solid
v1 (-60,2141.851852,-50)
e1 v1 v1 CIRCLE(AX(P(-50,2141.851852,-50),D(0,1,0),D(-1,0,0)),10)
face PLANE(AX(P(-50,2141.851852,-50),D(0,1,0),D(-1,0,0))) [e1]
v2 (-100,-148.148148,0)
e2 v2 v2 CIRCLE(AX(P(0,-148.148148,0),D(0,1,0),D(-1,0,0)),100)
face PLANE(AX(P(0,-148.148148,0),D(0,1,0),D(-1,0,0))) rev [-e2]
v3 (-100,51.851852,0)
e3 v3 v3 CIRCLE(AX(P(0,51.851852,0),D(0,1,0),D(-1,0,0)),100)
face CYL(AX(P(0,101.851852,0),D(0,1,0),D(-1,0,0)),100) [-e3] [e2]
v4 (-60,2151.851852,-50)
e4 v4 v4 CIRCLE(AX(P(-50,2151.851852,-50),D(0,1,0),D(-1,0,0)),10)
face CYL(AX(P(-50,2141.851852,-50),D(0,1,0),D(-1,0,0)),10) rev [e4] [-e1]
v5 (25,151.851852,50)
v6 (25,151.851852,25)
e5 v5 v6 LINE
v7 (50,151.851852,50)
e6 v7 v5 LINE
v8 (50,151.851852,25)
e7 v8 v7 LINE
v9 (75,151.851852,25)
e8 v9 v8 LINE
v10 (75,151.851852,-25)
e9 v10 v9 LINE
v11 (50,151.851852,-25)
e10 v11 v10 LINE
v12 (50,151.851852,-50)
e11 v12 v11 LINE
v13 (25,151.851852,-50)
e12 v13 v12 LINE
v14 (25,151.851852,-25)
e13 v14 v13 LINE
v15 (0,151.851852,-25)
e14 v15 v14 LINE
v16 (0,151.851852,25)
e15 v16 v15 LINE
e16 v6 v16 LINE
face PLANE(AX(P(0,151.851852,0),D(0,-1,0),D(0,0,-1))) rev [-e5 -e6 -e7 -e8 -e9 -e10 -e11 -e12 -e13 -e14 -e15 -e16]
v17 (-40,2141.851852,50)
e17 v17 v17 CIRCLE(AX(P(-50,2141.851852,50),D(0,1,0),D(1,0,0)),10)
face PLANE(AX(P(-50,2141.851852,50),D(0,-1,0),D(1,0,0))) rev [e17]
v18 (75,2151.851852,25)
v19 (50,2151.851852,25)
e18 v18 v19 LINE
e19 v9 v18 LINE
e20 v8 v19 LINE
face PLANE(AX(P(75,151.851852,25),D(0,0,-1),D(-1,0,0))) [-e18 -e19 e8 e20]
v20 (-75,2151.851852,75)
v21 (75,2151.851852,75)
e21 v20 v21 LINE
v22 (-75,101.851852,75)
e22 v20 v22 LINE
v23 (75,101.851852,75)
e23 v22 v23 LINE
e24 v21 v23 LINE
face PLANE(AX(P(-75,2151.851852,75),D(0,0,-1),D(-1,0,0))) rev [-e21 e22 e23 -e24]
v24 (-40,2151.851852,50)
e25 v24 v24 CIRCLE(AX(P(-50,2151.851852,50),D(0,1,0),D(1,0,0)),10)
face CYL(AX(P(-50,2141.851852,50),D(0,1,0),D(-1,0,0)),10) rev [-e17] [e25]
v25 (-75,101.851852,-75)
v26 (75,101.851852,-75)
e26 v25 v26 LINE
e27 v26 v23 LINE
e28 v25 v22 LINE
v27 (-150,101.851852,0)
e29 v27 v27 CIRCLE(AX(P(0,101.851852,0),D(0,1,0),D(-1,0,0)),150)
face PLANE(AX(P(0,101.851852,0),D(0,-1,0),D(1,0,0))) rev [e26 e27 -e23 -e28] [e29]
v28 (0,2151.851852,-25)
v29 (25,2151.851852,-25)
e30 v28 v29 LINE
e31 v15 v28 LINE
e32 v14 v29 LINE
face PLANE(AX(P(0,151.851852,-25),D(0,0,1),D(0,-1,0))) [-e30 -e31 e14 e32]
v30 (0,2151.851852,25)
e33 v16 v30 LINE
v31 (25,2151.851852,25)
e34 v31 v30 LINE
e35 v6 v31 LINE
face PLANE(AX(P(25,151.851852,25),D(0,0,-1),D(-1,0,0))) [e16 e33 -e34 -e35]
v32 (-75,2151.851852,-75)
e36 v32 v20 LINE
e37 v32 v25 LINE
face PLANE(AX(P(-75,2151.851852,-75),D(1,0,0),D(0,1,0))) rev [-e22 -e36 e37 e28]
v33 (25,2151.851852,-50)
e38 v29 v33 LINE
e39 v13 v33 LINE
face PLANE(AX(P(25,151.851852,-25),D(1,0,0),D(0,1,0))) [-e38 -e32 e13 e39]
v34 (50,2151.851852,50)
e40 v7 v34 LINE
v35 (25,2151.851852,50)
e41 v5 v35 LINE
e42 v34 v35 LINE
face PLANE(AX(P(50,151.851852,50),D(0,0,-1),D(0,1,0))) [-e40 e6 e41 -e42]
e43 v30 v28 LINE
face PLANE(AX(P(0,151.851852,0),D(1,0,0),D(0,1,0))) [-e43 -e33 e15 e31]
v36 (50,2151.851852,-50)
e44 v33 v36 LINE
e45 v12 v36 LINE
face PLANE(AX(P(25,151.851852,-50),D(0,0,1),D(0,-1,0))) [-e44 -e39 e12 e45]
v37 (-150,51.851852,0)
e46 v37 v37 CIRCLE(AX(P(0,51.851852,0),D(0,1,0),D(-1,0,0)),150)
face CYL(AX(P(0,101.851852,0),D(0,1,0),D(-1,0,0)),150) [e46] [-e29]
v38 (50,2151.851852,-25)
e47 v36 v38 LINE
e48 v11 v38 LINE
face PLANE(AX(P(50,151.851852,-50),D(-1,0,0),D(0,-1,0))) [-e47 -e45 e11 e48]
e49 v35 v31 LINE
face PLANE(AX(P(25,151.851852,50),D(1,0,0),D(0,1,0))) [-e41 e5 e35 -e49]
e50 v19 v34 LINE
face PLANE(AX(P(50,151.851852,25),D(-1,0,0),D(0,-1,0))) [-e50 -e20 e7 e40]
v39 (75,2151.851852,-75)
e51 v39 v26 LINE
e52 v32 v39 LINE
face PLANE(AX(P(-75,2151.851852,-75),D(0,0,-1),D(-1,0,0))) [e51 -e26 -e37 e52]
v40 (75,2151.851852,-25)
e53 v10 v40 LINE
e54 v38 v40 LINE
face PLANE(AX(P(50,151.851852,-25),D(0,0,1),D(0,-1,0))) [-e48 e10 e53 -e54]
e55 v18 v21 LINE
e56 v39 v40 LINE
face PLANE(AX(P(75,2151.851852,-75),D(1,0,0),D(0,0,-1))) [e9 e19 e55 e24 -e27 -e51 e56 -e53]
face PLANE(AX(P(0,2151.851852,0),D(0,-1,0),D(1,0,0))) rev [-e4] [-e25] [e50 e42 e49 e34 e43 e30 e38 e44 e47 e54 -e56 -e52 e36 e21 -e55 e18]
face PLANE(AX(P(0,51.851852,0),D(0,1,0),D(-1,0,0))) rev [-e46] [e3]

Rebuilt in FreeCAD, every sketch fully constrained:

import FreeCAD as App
import Part
import Sketcher
from FreeCAD import Vector

doc = App.newDocument("Part")
body = doc.addObject("PartDesign::Body", "Body")

# Sketch on XY plane
sketch1 = body.newObject("Sketcher::SketchObject", "Sketch")
sketch1.AttachmentSupport = (doc.getObject("XY_Plane"), [""])
sketch1.MapMode = "FlatFace"
sketch1.addGeometry([
    Part.LineSegment(Vector(150, 102, 0), Vector(0, 102, 0)),  # 0
    Part.LineSegment(Vector(0, 102, 0), Vector(0, -148, 0)),  # 1
    Part.LineSegment(Vector(0, -148, 0), Vector(100, -148, 0)),  # 2
    Part.LineSegment(Vector(100, -148, 0), Vector(100, 52, 0)),  # 3
    Part.LineSegment(Vector(100, 52, 0), Vector(150, 52, 0)),  # 4
    Part.LineSegment(Vector(150, 52, 0), Vector(150, 102, 0)),  # 5
], False)
sketch1.addConstraint([
    Sketcher.Constraint("Coincident", 0, 2, 1, 1),
    Sketcher.Constraint("Coincident", 1, 2, 2, 1),
    Sketcher.Constraint("Coincident", 2, 2, 3, 1),
    Sketcher.Constraint("Coincident", 3, 2, 4, 1),
    Sketcher.Constraint("Coincident", 4, 2, 5, 1),
    Sketcher.Constraint("Coincident", 5, 2, 0, 1),
    Sketcher.Constraint("Horizontal", 0),
    Sketcher.Constraint("Vertical", 1),
    Sketcher.Constraint("Horizontal", 2),
    Sketcher.Constraint("Vertical", 3),
    Sketcher.Constraint("Horizontal", 4),
    Sketcher.Constraint("Vertical", 5),
    Sketcher.Constraint("PointOnObject", 0, 2, -2),
    Sketcher.Constraint("Equal", 4, 5),
    Sketcher.Constraint("DistanceX", 0, 2, 0, 1, 150.0),
    Sketcher.Constraint("DistanceX", 2, 1, 2, 2, 100.0),
    Sketcher.Constraint("DistanceY", 1, 2, 1, 1, 250.0),
    Sketcher.Constraint("DistanceY", -1, 1, 0, 2, 101.851852),
])
revolution = body.newObject("PartDesign::Revolution", "Revolution")
revolution.Profile = sketch1
revolution.ReferenceAxis = (sketch1, ["V_Axis"])
revolution.Angle = 360

# Sketch on XZ plane
sketch2 = body.newObject("Sketcher::SketchObject", "Sketch001")
sketch2.AttachmentSupport = (doc.getObject("XZ_Plane"), [""])
sketch2.MapMode = "FlatFace"
sketch2.AttachmentOffset = App.Placement(Vector(0, 0, -101.851852), App.Rotation())
sketch2.addGeometry([
    Part.LineSegment(Vector(-75, -75, 0), Vector(-75, 75, 0)),
    Part.LineSegment(Vector(-75, 75, 0), Vector(75, 75, 0)),
    Part.LineSegment(Vector(75, 75, 0), Vector(75, -75, 0)),
    Part.LineSegment(Vector(75, -75, 0), Vector(-75, -75, 0)),
], False)
sketch2.addConstraint([
    Sketcher.Constraint("Coincident", 0, 2, 1, 1),
    Sketcher.Constraint("Coincident", 1, 2, 2, 1),
    Sketcher.Constraint("Coincident", 2, 2, 3, 1),
    Sketcher.Constraint("Coincident", 3, 2, 0, 1),
    Sketcher.Constraint("Vertical", 0),
    Sketcher.Constraint("Horizontal", 1),
    Sketcher.Constraint("Vertical", 2),
    Sketcher.Constraint("Horizontal", 3),
    Sketcher.Constraint("Symmetric", 0, 2, 2, 2, -1, 1),
    Sketcher.Constraint("Equal", 3, 0),
    Sketcher.Constraint("DistanceX", 1, 1, 1, 2, 150.0),
])
pad1 = body.newObject("PartDesign::Pad", "Pad")
pad1.Profile = sketch2
pad1.Length = 2050
pad1.Reversed = True

# Sketch on XZ plane
sketch3 = body.newObject("Sketcher::SketchObject", "Sketch002")
sketch3.AttachmentSupport = (doc.getObject("XZ_Plane"), [""])
sketch3.MapMode = "FlatFace"
sketch3.AttachmentOffset = App.Placement(Vector(0, 0, -2151.851852), App.Rotation())
sketch3.addGeometry([
    Part.LineSegment(Vector(0, -25, 0), Vector(0, 25, 0)),  # 0
    Part.LineSegment(Vector(0, 25, 0), Vector(25, 25, 0)),  # 1
    Part.LineSegment(Vector(25, 25, 0), Vector(25, 50, 0)),  # 2
    Part.LineSegment(Vector(25, 50, 0), Vector(50, 50, 0)),  # 3
    Part.LineSegment(Vector(50, 50, 0), Vector(50, 25, 0)),  # 4
    Part.LineSegment(Vector(50, 25, 0), Vector(75, 25, 0)),  # 5
    Part.LineSegment(Vector(75, 25, 0), Vector(75, -25, 0)),  # 6
    Part.LineSegment(Vector(75, -25, 0), Vector(50, -25, 0)),  # 7
    Part.LineSegment(Vector(50, -25, 0), Vector(50, -50, 0)),  # 8
    Part.LineSegment(Vector(50, -50, 0), Vector(25, -50, 0)),  # 9
    Part.LineSegment(Vector(25, -50, 0), Vector(25, -25, 0)),  # 10
    Part.LineSegment(Vector(25, -25, 0), Vector(0, -25, 0)),  # 11
], False)
sketch3.addConstraint([
    Sketcher.Constraint("Coincident", 0, 2, 1, 1),
    Sketcher.Constraint("Coincident", 1, 2, 2, 1),
    Sketcher.Constraint("Coincident", 2, 2, 3, 1),
    Sketcher.Constraint("Coincident", 3, 2, 4, 1),
    Sketcher.Constraint("Coincident", 4, 2, 5, 1),
    Sketcher.Constraint("Coincident", 5, 2, 6, 1),
    Sketcher.Constraint("Coincident", 6, 2, 7, 1),
    Sketcher.Constraint("Coincident", 7, 2, 8, 1),
    Sketcher.Constraint("Coincident", 8, 2, 9, 1),
    Sketcher.Constraint("Coincident", 9, 2, 10, 1),
    Sketcher.Constraint("Coincident", 10, 2, 11, 1),
    Sketcher.Constraint("Coincident", 11, 2, 0, 1),
    Sketcher.Constraint("Vertical", 0),
    Sketcher.Constraint("Horizontal", 1),
    Sketcher.Constraint("Vertical", 2),
    Sketcher.Constraint("Horizontal", 3),
    Sketcher.Constraint("Vertical", 4),
    Sketcher.Constraint("Horizontal", 5),
    Sketcher.Constraint("Vertical", 6),
    Sketcher.Constraint("Horizontal", 7),
    Sketcher.Constraint("Vertical", 8),
    Sketcher.Constraint("Horizontal", 9),
    Sketcher.Constraint("Vertical", 10),
    Sketcher.Constraint("Horizontal", 11),
    Sketcher.Constraint("Symmetric", 0, 2, 11, 2, -1, 1),
    Sketcher.Constraint("Symmetric", 4, 2, 7, 2, -1),
    Sketcher.Constraint("Symmetric", 2, 2, 9, 2, -1),
    Sketcher.Constraint("Horizontal", 1, 2, 4, 2),
    Sketcher.Constraint("Equal", 1, 3),
    Sketcher.Constraint("Equal", 3, 5),
    Sketcher.Constraint("Equal", 11, 2),
    Sketcher.Constraint("DistanceX", 1, 1, 1, 2, 25.0),
    Sketcher.Constraint("DistanceY", 0, 1, 0, 2, 50.0),
])
pocket1 = body.newObject("PartDesign::Pocket", "Pocket")
pocket1.Profile = sketch3
pocket1.Length = 2000
pocket1.Reversed = True

# Sketch on XZ plane
sketch4 = body.newObject("Sketcher::SketchObject", "Sketch003")
sketch4.AttachmentSupport = (doc.getObject("XZ_Plane"), [""])
sketch4.MapMode = "FlatFace"
sketch4.AttachmentOffset = App.Placement(Vector(0, 0, -2151.851852), App.Rotation())
sketch4.addGeometry([
    Part.Circle(Vector(-50, -50, 0), Vector(0, 0, 1), 10),
    Part.Circle(Vector(-50, 50, 0), Vector(0, 0, 1), 10),
], False)
sketch4.addConstraint([
    Sketcher.Constraint("Equal", 0, 1),
    Sketcher.Constraint("Symmetric", 0, 3, 1, 3, -1),
    Sketcher.Constraint("Diameter", 0, 20.0),
    Sketcher.Constraint("DistanceX", 0, 3, -1, 1, 50.0),
    Sketcher.Constraint("DistanceY", 0, 3, -1, 1, 50.0),
])
pocket2 = body.newObject("PartDesign::Pocket", "Pocket001")
pocket2.Profile = sketch4
pocket2.Length = 10
pocket2.Reversed = True

doc.recompute()
